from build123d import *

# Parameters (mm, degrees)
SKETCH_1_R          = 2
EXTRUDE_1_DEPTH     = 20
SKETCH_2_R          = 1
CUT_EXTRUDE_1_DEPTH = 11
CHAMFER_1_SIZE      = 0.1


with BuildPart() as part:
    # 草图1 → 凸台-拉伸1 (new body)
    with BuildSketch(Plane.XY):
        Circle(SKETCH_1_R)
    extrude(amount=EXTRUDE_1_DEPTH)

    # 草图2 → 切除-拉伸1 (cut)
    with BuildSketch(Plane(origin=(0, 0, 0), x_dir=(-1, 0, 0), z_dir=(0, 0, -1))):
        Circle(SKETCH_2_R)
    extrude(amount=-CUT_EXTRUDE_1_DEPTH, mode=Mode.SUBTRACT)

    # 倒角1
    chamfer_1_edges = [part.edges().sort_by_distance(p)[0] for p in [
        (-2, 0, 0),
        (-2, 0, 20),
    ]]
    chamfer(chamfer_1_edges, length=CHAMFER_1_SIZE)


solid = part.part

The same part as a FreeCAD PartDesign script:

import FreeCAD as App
import Part
import Sketcher
from FreeCAD import Vector


def edges_at(feature, points):
    """Names of the edges that pass closest to the given points."""
    edges = feature.Shape.Edges
    near = lambda p: min(range(len(edges)), key=lambda i: edges[i].distToShape(Part.Vertex(*p))[0])
    return sorted({f"Edge{near(p) + 1}" for p in points})

doc = App.newDocument("Part")
body = doc.addObject("PartDesign::Body", "Body")

# Sketch on XY plane
sketch1 = body.newObject("Sketcher::SketchObject", "Sketch")
sketch1.AttachmentSupport = (doc.getObject("XY_Plane"), [""])
sketch1.MapMode = "FlatFace"
sketch1.addGeometry(Part.Circle(Vector(0, 0, 0), Vector(0, 0, 1), 2), False)
sketch1.addConstraint(Sketcher.Constraint("Coincident", 0, 3, -1, 1))
sketch1.addConstraint(Sketcher.Constraint("Diameter", 0, 4.0))
pad1 = body.newObject("PartDesign::Pad", "Pad")
pad1.Profile = sketch1
pad1.Length = 20

# Sketch on XY plane
sketch2 = body.newObject("Sketcher::SketchObject", "Sketch001")
sketch2.AttachmentSupport = (doc.getObject("XY_Plane"), [""])
sketch2.MapMode = "FlatFace"
sketch2.addGeometry(Part.Circle(Vector(0, 0, 0), Vector(0, 0, 1), 1), False)
sketch2.addConstraint(Sketcher.Constraint("Coincident", 0, 3, -1, 1))
sketch2.addConstraint(Sketcher.Constraint("Diameter", 0, 2.0))
pocket1 = body.newObject("PartDesign::Pocket", "Pocket")
pocket1.Profile = sketch2
pocket1.Length = 11
pocket1.Reversed = True
doc.recompute()

chamfer = body.newObject("PartDesign::Chamfer", "Chamfer")
chamfer.Base = (pocket1, edges_at(pocket1, [(-2, 0, 0), (-2, 0, 20)]))
chamfer.Size = 0.1

doc.recompute()
